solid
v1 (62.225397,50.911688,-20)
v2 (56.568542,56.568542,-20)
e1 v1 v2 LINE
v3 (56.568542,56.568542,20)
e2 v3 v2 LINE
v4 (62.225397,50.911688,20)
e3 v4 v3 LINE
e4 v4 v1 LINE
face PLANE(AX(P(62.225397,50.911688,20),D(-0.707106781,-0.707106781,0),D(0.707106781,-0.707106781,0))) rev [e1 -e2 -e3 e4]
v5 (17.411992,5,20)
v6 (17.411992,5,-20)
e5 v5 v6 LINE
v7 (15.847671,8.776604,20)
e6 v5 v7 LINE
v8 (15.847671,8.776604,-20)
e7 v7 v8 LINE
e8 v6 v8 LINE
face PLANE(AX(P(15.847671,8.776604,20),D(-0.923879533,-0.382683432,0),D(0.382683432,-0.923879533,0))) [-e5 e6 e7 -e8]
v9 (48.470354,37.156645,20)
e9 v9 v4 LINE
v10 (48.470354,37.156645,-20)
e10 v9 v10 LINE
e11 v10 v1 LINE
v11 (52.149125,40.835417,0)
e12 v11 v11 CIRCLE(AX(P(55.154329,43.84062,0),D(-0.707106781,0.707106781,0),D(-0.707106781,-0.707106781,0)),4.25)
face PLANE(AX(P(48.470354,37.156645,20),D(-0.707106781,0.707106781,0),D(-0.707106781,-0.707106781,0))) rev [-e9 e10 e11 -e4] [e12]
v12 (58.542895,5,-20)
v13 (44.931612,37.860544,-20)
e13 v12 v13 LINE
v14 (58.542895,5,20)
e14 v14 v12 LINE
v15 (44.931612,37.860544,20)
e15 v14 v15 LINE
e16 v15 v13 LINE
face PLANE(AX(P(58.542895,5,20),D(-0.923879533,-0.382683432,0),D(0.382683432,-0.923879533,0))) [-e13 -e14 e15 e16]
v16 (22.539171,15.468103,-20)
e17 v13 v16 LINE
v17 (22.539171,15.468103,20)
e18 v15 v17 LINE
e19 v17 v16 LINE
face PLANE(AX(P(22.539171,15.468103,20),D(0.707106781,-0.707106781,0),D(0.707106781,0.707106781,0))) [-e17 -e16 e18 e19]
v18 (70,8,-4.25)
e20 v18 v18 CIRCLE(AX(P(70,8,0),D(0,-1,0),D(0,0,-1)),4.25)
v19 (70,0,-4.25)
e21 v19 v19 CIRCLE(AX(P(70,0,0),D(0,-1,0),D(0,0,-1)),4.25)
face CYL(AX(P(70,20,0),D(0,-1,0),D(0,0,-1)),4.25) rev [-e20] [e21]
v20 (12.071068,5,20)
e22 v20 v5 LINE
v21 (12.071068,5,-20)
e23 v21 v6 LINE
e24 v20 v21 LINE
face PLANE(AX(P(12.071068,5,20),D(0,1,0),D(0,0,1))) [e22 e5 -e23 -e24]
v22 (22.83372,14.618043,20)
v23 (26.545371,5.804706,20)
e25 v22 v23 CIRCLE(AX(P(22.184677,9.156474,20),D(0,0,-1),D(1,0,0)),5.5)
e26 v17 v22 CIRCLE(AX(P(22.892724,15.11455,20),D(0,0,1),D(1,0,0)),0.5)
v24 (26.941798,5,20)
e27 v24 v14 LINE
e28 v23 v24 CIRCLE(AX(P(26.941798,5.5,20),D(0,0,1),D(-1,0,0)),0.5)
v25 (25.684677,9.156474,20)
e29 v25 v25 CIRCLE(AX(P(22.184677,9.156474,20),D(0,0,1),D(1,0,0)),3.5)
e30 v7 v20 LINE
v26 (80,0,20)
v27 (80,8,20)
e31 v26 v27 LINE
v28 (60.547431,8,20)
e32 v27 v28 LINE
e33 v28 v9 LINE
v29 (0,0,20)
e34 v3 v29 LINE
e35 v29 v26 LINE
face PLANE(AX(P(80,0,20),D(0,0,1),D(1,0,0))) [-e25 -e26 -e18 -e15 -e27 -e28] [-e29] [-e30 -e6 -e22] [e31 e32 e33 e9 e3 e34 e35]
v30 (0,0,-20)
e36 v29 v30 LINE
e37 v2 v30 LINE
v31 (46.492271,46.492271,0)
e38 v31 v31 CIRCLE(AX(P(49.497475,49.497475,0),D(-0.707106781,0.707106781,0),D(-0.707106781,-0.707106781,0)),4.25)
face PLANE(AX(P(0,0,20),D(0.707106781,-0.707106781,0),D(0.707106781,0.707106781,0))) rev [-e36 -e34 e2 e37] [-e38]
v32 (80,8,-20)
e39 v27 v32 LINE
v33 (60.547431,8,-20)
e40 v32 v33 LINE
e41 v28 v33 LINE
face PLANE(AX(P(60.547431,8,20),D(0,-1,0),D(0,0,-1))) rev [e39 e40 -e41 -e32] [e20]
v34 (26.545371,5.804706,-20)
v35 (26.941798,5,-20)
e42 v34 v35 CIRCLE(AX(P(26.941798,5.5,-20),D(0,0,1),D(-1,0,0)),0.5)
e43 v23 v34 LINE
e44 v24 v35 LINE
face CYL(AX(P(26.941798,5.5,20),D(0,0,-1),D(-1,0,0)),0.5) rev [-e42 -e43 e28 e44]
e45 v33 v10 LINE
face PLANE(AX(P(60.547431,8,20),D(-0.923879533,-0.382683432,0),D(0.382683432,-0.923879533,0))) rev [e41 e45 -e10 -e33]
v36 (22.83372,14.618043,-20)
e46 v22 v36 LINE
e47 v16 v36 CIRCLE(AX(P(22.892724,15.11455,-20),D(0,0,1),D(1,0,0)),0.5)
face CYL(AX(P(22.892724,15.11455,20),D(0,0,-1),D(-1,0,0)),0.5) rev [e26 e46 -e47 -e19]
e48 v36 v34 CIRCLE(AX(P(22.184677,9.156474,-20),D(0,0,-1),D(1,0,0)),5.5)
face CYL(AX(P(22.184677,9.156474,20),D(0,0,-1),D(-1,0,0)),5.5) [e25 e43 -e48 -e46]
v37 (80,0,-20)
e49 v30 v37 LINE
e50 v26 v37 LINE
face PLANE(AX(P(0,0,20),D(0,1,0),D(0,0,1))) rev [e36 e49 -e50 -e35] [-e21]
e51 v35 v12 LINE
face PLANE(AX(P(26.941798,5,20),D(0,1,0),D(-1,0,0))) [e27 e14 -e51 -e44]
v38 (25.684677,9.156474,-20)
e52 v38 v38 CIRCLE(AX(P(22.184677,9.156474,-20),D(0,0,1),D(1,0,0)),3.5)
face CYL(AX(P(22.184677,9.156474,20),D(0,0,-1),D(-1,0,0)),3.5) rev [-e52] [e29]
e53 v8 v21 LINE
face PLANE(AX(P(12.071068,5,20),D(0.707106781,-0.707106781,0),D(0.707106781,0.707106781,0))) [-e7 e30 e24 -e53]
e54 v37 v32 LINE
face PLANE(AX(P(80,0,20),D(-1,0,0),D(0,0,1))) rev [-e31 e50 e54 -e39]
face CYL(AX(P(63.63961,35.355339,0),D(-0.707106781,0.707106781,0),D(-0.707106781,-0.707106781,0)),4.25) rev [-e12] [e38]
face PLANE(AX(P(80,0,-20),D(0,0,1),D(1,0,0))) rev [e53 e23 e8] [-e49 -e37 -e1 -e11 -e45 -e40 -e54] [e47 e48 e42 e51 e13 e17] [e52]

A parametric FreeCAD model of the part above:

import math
import FreeCAD as App
import Part
import Sketcher

V = App.Vector
Q = App.Units.Quantity

doc = App.newDocument("Part")
params = doc.addObject("Spreadsheet::Sheet", "Params")
for row, (alias, value) in enumerate([
    ("sketch1_diameter", "7 mm"),
    ("sketch1_radius", "0.5 mm"),
    ("sketch1_radius2", "5.5 mm"),
    ("sketch1_width", "80 mm"),
    ("sketch1_height", "8 mm"),
    ("pad1_length", "40 mm"),
    ("sketch2_diameter", "8.5 mm"),
    ("pocket1_length", "20 mm"),
    ("sketch3_diameter", "8.5 mm"),
    ("pocket2_length", "20 mm"),
], start=1):
    params.set(f"A{row}", alias)
    params.set(f"B{row}", "=" + value)
    params.setAlias(f"B{row}", alias)

body = doc.addObject("PartDesign::Body", "Body")

sketch1 = doc.addObject("Sketcher::SketchObject", "Sketch")
body.addObject(sketch1)
sketch1.AttachmentSupport = (doc.XY_Plane, [""])
sketch1.MapMode = "FlatFace"
sketch1.addGeometry([
    Part.LineSegment(V(56.6, 56.6, 0), V(0, 0, 0)),
    Part.LineSegment(V(0, 0, 0), V(80, 0, 0)),
    Part.LineSegment(V(80, 0, 0), V(80, 8, 0)),
    Part.LineSegment(V(80, 8, 0), V(60.5, 8, 0)),
    Part.LineSegment(V(60.5, 8, 0), V(48.5, 37.2, 0)),
    Part.LineSegment(V(48.5, 37.2, 0), V(62.2, 50.9, 0)),
    Part.LineSegment(V(62.2, 50.9, 0), V(56.6, 56.6, 0)),
    Part.LineSegment(V(12.1, 5, 0), V(15.8, 8.8, 0)),
    Part.LineSegment(V(15.8, 8.8, 0), V(17.4, 5, 0)),
    Part.LineSegment(V(17.4, 5, 0), V(12.1, 5, 0)),
    Part.Circle(V(22.2, 9.2, 0), V(0, 0, 1), 3.5),
    Part.LineSegment(V(22.5, 15.5, 0), V(44.9, 37.9, 0)),
    Part.LineSegment(V(44.9, 37.9, 0), V(58.5, 5, 0)),
    Part.LineSegment(V(58.5, 5, 0), V(26.9, 5, 0)),
    Part.ArcOfCircle(Part.Circle(V(26.9, 5.5, 0), V(0, 0, 1), 0.5), math.radians(142), math.radians(270)),
    Part.ArcOfCircle(Part.Circle(V(22.2, 9.2, 0), V(0, 0, 1), 5.5), math.radians(-38), math.radians(83)),
    Part.ArcOfCircle(Part.Circle(V(22.9, 15.1, 0), V(0, 0, 1), 0.5), math.radians(135), math.radians(263)),
], False)
sketch1.addConstraint([
    Sketcher.Constraint("Coincident", 0, 2, 1, 1),
    Sketcher.Constraint("Coincident", 1, 2, 2, 1),
    Sketcher.Constraint("Coincident", 2, 2, 3, 1),
    Sketcher.Constraint("Coincident", 3, 2, 4, 1),
    Sketcher.Constraint("Coincident", 4, 2, 5, 1),
    Sketcher.Constraint("Coincident", 5, 2, 6, 1),
    Sketcher.Constraint("Coincident", 6, 2, 0, 1),
    Sketcher.Constraint("Coincident", 7, 2, 8, 1),
    Sketcher.Constraint("Coincident", 8, 2, 9, 1),
    Sketcher.Constraint("Coincident", 9, 2, 7, 1),
    Sketcher.Constraint("Coincident", 11, 2, 12, 1),
    Sketcher.Constraint("Coincident", 12, 2, 13, 1),
    Sketcher.Constraint("Tangent", 13, 2, 14, 2),
    Sketcher.Constraint("Tangent", 14, 1, 15, 1),
    Sketcher.Constraint("Tangent", 15, 2, 16, 2),
    Sketcher.Constraint("Tangent", 16, 1, 11, 1),
    Sketcher.Constraint("Horizontal", 1),
    Sketcher.Constraint("Vertical", 2),
    Sketcher.Constraint("Horizontal", 3),
    Sketcher.Constraint("Horizontal", 9),
    Sketcher.Constraint("Horizontal", 13),
    Sketcher.Constraint("Coincident", 0, 2, -1, 1),
    Sketcher.Constraint("Coincident", 15, 3, 10, 3),
    Sketcher.Constraint("Equal", 14, 16),
    Sketcher.Constraint("Parallel", 0, 5),
    Sketcher.Constraint("Perpendicular", 5, 6),
    Sketcher.Constraint("Perpendicular", 6, 7),
    Sketcher.Constraint("Parallel", 4, 8),
    Sketcher.Constraint("Parallel", 7, 11),
    Sketcher.Constraint("Parallel", 8, 12),
    Sketcher.Constraint("Horizontal", 9, 2, 12, 2),
    Sketcher.Constraint("Diameter", 10, 7.0),
    Sketcher.Constraint("Radius", 14, 0.5),
    Sketcher.Constraint("Radius", 15, 5.5),
    Sketcher.Constraint("DistanceX", 1, 1, 1, 2, 80.0),
    Sketcher.Constraint("DistanceY", 2, 1, 2, 2, 8.0),
    Sketcher.Constraint("Angle", 0, Q("-135 deg")),
    Sketcher.Constraint("Distance", 0, 80.0),
    Sketcher.Constraint("Distance", 6, 8.0),
    Sketcher.Constraint("DistanceY", -1, 1, 8, 2, 5.0),
    Sketcher.Constraint("Angle", 4, Q("112.5 deg")),
    Sketcher.Constraint("DistanceY", 11, 2, 6, 2, 18.707998),
    Sketcher.Constraint("DistanceX", 3, 2, 3, 1, 19.452569),
    Sketcher.Constraint("DistanceX", -1, 1, 14, 3, 26.941798),
    Sketcher.Constraint("DistanceX", 7, 2, 16, 1, 6.6915),
    Sketcher.Constraint("DistanceY", 7, 2, 16, 1, 6.6915),
    Sketcher.Constraint("DistanceX", 9, 2, 9, 1, 5.340924),
    Sketcher.Constraint("DistanceX", 13, 2, 13, 1, 31.601097),
])
sketch1.setExpression("Constraints[31]", "Params.sketch1_diameter")
sketch1.setExpression("Constraints[32]", "Params.sketch1_radius")
sketch1.setExpression("Constraints[33]", "Params.sketch1_radius2")
sketch1.setExpression("Constraints[34]", "Params.sketch1_width")
sketch1.setExpression("Constraints[35]", "Params.sketch1_height")
pad1 = doc.addObject("PartDesign::Pad", "Pad")
body.addObject(pad1)
pad1.Profile = sketch1
pad1.setExpression("Length", "Params.pad1_length")
pad1.Midplane = True

sketch2 = doc.addObject("Sketcher::SketchObject", "Sketch001")
body.addObject(sketch2)
sketch2.Placement = App.Placement(V(0, 0, 0), App.Rotation(V(0, 0, 1), V(0.707106781, 0.707106781, 0), V(-0.707106781, 0.707106781, 0), "ZXY"))
sketch2.addGeometry(Part.Circle(V(0, 70, 0), V(0, 0, 1), 4.2), False)
sketch2.addConstraint([
    Sketcher.Constraint("PointOnObject", 0, 3, -2),
    Sketcher.Constraint("Diameter", 0, 8.5),
    Sketcher.Constraint("DistanceY", -1, 1, 0, 3, 70.0),
])
sketch2.setExpression("Constraints[1]", "Params.sketch2_diameter")
pocket1 = doc.addObject("PartDesign::Pocket", "Pocket")
body.addObject(pocket1)
pocket1.Profile = sketch2
pocket1.setExpression("Length", "Params.pocket1_length")

sketch3 = doc.addObject("Sketcher::SketchObject", "Sketch002")
body.addObject(sketch3)
sketch3.AttachmentSupport = (doc.XZ_Plane, [""])
sketch3.MapMode = "FlatFace"
sketch3.addGeometry(Part.Circle(V(70, 0, 0), V(0, 0, 1), 4.2), False)
sketch3.addConstraint([
    Sketcher.Constraint("PointOnObject", 0, 3, -1),
    Sketcher.Constraint("Diameter", 0, 8.5),
    Sketcher.Constraint("DistanceX", -1, 1, 0, 3, 70.0),
])
sketch3.setExpression("Constraints[1]", "Params.sketch3_diameter")
pocket2 = doc.addObject("PartDesign::Pocket", "Pocket001")
body.addObject(pocket2)
pocket2.Profile = sketch3
pocket2.setExpression("Length", "Params.pocket2_length")

doc.recompute()
